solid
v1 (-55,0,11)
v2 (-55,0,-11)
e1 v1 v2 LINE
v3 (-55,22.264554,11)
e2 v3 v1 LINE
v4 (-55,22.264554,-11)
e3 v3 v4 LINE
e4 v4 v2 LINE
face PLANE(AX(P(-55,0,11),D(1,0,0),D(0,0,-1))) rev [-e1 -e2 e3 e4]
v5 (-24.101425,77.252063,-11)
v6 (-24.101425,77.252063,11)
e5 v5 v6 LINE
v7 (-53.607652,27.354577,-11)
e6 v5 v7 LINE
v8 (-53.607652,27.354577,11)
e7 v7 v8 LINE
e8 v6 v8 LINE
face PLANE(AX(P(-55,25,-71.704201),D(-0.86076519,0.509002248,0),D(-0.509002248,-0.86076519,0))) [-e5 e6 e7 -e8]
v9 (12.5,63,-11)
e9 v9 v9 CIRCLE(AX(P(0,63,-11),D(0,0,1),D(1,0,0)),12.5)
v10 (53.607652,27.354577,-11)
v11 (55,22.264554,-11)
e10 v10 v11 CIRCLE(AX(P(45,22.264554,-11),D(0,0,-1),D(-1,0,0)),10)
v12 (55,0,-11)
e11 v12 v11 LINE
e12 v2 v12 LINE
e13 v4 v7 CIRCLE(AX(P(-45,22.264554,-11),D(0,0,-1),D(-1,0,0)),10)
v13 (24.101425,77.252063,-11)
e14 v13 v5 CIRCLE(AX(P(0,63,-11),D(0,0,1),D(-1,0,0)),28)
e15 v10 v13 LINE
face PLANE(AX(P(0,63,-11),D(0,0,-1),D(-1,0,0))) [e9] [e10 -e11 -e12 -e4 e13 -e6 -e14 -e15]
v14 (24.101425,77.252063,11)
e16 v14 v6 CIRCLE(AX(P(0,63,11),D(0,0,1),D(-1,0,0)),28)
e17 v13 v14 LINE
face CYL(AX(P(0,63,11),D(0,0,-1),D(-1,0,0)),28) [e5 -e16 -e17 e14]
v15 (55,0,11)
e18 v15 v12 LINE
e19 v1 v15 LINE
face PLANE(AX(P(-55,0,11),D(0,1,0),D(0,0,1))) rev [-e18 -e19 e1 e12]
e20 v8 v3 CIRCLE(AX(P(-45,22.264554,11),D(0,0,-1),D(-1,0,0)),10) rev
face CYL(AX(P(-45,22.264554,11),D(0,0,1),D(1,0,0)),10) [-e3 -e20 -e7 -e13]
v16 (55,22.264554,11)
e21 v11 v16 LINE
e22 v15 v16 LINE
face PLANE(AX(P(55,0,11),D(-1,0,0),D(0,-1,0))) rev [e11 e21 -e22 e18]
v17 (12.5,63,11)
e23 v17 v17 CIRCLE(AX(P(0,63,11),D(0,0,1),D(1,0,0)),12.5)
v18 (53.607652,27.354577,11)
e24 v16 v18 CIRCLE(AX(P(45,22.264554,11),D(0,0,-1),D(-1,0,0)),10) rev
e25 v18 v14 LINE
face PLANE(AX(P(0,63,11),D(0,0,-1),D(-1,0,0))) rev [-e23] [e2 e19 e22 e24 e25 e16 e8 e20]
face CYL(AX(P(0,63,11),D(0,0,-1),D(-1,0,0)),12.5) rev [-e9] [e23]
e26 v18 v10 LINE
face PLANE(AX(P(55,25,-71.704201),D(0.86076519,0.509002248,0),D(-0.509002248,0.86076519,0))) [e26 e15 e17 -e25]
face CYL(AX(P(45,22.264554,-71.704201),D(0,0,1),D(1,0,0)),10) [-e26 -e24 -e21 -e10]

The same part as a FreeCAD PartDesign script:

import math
import FreeCAD as App
import Part
import Sketcher

V = App.Vector


def edges_at(feature, points):
    """Names of the edges that pass closest to the given points."""
    edges = feature.Shape.Edges
    near = lambda p: min(range(len(edges)), key=lambda i: edges[i].distToShape(Part.Vertex(*p))[0])
    return sorted({f"Edge{near(p) + 1}" for p in points})

doc = App.newDocument("Part")
params = doc.addObject("Spreadsheet::Sheet", "Params")
for row, (alias, value) in enumerate([
    ("sketch1_diameter", "25 mm"),
    ("sketch1_radius", "28 mm"),
    ("sketch1_width", "110 mm"),
    ("sketch1_height", "25 mm"),
    ("sketch1_height2", "38 mm"),
    ("pad1_length", "22 mm"),
    ("sketch2_radius", "28 mm"),
    ("sketch2_width", "27 mm"),
    ("sketch2_height", "38 mm"),
    ("pad2_length", "22 mm"),
    ("fillet_radius", "10 mm"),
], start=1):
    params.set(f"A{row}", alias)
    params.set(f"B{row}", "=" + value)
    params.setAlias(f"B{row}", alias)

body = doc.addObject("PartDesign::Body", "Body")

sketch1 = body.newObject("Sketcher::SketchObject", "Sketch")
sketch1.AttachmentSupport = (doc.getObject("XY_Plane"), [""])
sketch1.MapMode = "FlatFace"
sketch1.addGeometry(Part.LineSegment(V(-55, 0, 0), V(55, 0, 0)), False)
sketch1.addGeometry(Part.LineSegment(V(55, 0, 0), V(55, 25, 0)), False)
sketch1.addGeometry(Part.LineSegment(V(55, 25, 0), V(28, 25, 0)), False)
sketch1.addGeometry(Part.LineSegment(V(28, 25, 0), V(28, 63, 0)), False)
sketch1.addGeometry(Part.ArcOfCircle(Part.Circle(V(0, 63, 0), V(0, 0, 1), 28), math.radians(0), math.radians(180)), False)
sketch1.addGeometry(Part.LineSegment(V(-28, 63, 0), V(-28, 25, 0)), False)
sketch1.addGeometry(Part.LineSegment(V(-28, 25, 0), V(-55, 25, 0)), False)
sketch1.addGeometry(Part.LineSegment(V(-55, 25, 0), V(-55, 0, 0)), False)
sketch1.addGeometry(Part.Circle(V(0, 63, 0), V(0, 0, 1), 12), False)
sketch1.addConstraint(Sketcher.Constraint("Coincident", 0, 2, 1, 1))
sketch1.addConstraint(Sketcher.Constraint("Coincident", 1, 2, 2, 1))
sketch1.addConstraint(Sketcher.Constraint("Coincident", 2, 2, 3, 1))
sketch1.addConstraint(Sketcher.Constraint("Tangent", 3, 2, 4, 1))
sketch1.addConstraint(Sketcher.Constraint("Tangent", 4, 2, 5, 1))
sketch1.addConstraint(Sketcher.Constraint("Coincident", 5, 2, 6, 1))
sketch1.addConstraint(Sketcher.Constraint("Coincident", 6, 2, 7, 1))
sketch1.addConstraint(Sketcher.Constraint("Coincident", 7, 2, 0, 1))
sketch1.addConstraint(Sketcher.Constraint("Horizontal", 0))
sketch1.addConstraint(Sketcher.Constraint("Vertical", 1))
sketch1.addConstraint(Sketcher.Constraint("Horizontal", 2))
sketch1.addConstraint(Sketcher.Constraint("Vertical", 3))
sketch1.addConstraint(Sketcher.Constraint("Vertical", 5))
sketch1.addConstraint(Sketcher.Constraint("Horizontal", 6))
sketch1.addConstraint(Sketcher.Constraint("Vertical", 7))
sketch1.addConstraint(Sketcher.Constraint("Coincident", 8, 3, 4, 3))
sketch1.addConstraint(Sketcher.Constraint("Symmetric", 0, 2, 7, 2, -1, 1))
sketch1.addConstraint(Sketcher.Constraint("Symmetric", 2, 2, 5, 2, -2))
sketch1.addConstraint(Sketcher.Constraint("Diameter", 8, 25.0))
sketch1.addConstraint(Sketcher.Constraint("Radius", 4, 28.0))
sketch1.addConstraint(Sketcher.Constraint("DistanceX", 0, 1, 0, 2, 110.0))
sketch1.addConstraint(Sketcher.Constraint("DistanceY", 1, 1, 1, 2, 25.0))
sketch1.addConstraint(Sketcher.Constraint("DistanceY", 3, 1, 3, 2, 38.0))
sketch1.setExpression("Constraints[18]", "Params.sketch1_diameter")
sketch1.setExpression("Constraints[19]", "Params.sketch1_radius")
sketch1.setExpression("Constraints[20]", "Params.sketch1_width")
sketch1.setExpression("Constraints[21]", "Params.sketch1_height")
sketch1.setExpression("Constraints[22]", "Params.sketch1_height2")
pad1 = body.newObject("PartDesign::Pad", "Pad")
pad1.Profile = sketch1
pad1.setExpression("Length", "Params.pad1_length")
pad1.Midplane = True

sketch2 = body.newObject("Sketcher::SketchObject", "Sketch001")
sketch2.AttachmentSupport = (doc.getObject("XY_Plane"), [""])
sketch2.MapMode = "FlatFace"
sketch2.AttachmentOffset = App.Placement(V(0, 0, 11), App.Rotation())
sketch2.addGeometry(Part.LineSegment(V(-24, 77, 0), V(-55, 25, 0)), False)
sketch2.addGeometry(Part.LineSegment(V(-55, 25, 0), V(-28, 25, 0)), False)
sketch2.addGeometry(Part.LineSegment(V(-28, 25, 0), V(-28, 63, 0)), False)
sketch2.addGeometry(Part.ArcOfCircle(Part.Circle(V(0, 63, 0), V(0, 0, 1), 28), math.radians(149), math.radians(180)), False)
sketch2.addGeometry(Part.LineSegment(V(55, 25, 0), V(24, 77, 0)), False)
sketch2.addGeometry(Part.ArcOfCircle(Part.Circle(V(0, 63, 0), V(0, 0, 1), 28), math.radians(0), math.radians(31)), False)
sketch2.addGeometry(Part.LineSegment(V(28, 63, 0), V(28, 25, 0)), False)
sketch2.addGeometry(Part.LineSegment(V(28, 25, 0), V(55, 25, 0)), False)
sketch2.addConstraint(Sketcher.Constraint("Coincident", 0, 2, 1, 1))
sketch2.addConstraint(Sketcher.Constraint("Coincident", 1, 2, 2, 1))
sketch2.addConstraint(Sketcher.Constraint("Tangent", 2, 2, 3, 2))
sketch2.addConstraint(Sketcher.Constraint("Tangent", 3, 1, 0, 1))
sketch2.addConstraint(Sketcher.Constraint("Tangent", 4, 2, 5, 2))
sketch2.addConstraint(Sketcher.Constraint("Tangent", 5, 1, 6, 1))
sketch2.addConstraint(Sketcher.Constraint("Coincident", 6, 2, 7, 1))
sketch2.addConstraint(Sketcher.Constraint("Coincident", 7, 2, 4, 1))
sketch2.addConstraint(Sketcher.Constraint("Horizontal", 1))
sketch2.addConstraint(Sketcher.Constraint("Vertical", 2))
sketch2.addConstraint(Sketcher.Constraint("Vertical", 6))
sketch2.addConstraint(Sketcher.Constraint("Horizontal", 7))
sketch2.addConstraint(Sketcher.Constraint("Coincident", 5, 3, 3, 3))
sketch2.addConstraint(Sketcher.Constraint("Equal", 3, 5))
sketch2.addConstraint(Sketcher.Constraint("Symmetric", 3, 1, 4, 2, -2))
sketch2.addConstraint(Sketcher.Constraint("Horizontal", 1, 2, 6, 2))
sketch2.addConstraint(Sketcher.Constraint("Radius", 3, 28.0))
sketch2.addConstraint(Sketcher.Constraint("DistanceX", 1, 1, 1, 2, 27.0))
sketch2.addConstraint(Sketcher.Constraint("DistanceY", 2, 1, 2, 2, 38.0))
sketch2.addConstraint(Sketcher.Constraint("DistanceY", -1, 1, 3, 3, 63.0))
sketch2.setExpression("Constraints[16]", "Params.sketch2_radius")
sketch2.setExpression("Constraints[17]", "Params.sketch2_width")
sketch2.setExpression("Constraints[18]", "Params.sketch2_height")
pad2 = body.newObject("PartDesign::Pad", "Pad001")
pad2.Profile = sketch2
pad2.setExpression("Length", "Params.pad2_length")
pad2.Reversed = True
doc.recompute()

fillet = body.newObject("PartDesign::Fillet", "Fillet")
fillet.Base = (pad2, edges_at(pad2, [(-55, 25, 0), (55, 25, 0)]))
fillet.setExpression("Radius", "Params.fillet_radius")

doc.recompute()
